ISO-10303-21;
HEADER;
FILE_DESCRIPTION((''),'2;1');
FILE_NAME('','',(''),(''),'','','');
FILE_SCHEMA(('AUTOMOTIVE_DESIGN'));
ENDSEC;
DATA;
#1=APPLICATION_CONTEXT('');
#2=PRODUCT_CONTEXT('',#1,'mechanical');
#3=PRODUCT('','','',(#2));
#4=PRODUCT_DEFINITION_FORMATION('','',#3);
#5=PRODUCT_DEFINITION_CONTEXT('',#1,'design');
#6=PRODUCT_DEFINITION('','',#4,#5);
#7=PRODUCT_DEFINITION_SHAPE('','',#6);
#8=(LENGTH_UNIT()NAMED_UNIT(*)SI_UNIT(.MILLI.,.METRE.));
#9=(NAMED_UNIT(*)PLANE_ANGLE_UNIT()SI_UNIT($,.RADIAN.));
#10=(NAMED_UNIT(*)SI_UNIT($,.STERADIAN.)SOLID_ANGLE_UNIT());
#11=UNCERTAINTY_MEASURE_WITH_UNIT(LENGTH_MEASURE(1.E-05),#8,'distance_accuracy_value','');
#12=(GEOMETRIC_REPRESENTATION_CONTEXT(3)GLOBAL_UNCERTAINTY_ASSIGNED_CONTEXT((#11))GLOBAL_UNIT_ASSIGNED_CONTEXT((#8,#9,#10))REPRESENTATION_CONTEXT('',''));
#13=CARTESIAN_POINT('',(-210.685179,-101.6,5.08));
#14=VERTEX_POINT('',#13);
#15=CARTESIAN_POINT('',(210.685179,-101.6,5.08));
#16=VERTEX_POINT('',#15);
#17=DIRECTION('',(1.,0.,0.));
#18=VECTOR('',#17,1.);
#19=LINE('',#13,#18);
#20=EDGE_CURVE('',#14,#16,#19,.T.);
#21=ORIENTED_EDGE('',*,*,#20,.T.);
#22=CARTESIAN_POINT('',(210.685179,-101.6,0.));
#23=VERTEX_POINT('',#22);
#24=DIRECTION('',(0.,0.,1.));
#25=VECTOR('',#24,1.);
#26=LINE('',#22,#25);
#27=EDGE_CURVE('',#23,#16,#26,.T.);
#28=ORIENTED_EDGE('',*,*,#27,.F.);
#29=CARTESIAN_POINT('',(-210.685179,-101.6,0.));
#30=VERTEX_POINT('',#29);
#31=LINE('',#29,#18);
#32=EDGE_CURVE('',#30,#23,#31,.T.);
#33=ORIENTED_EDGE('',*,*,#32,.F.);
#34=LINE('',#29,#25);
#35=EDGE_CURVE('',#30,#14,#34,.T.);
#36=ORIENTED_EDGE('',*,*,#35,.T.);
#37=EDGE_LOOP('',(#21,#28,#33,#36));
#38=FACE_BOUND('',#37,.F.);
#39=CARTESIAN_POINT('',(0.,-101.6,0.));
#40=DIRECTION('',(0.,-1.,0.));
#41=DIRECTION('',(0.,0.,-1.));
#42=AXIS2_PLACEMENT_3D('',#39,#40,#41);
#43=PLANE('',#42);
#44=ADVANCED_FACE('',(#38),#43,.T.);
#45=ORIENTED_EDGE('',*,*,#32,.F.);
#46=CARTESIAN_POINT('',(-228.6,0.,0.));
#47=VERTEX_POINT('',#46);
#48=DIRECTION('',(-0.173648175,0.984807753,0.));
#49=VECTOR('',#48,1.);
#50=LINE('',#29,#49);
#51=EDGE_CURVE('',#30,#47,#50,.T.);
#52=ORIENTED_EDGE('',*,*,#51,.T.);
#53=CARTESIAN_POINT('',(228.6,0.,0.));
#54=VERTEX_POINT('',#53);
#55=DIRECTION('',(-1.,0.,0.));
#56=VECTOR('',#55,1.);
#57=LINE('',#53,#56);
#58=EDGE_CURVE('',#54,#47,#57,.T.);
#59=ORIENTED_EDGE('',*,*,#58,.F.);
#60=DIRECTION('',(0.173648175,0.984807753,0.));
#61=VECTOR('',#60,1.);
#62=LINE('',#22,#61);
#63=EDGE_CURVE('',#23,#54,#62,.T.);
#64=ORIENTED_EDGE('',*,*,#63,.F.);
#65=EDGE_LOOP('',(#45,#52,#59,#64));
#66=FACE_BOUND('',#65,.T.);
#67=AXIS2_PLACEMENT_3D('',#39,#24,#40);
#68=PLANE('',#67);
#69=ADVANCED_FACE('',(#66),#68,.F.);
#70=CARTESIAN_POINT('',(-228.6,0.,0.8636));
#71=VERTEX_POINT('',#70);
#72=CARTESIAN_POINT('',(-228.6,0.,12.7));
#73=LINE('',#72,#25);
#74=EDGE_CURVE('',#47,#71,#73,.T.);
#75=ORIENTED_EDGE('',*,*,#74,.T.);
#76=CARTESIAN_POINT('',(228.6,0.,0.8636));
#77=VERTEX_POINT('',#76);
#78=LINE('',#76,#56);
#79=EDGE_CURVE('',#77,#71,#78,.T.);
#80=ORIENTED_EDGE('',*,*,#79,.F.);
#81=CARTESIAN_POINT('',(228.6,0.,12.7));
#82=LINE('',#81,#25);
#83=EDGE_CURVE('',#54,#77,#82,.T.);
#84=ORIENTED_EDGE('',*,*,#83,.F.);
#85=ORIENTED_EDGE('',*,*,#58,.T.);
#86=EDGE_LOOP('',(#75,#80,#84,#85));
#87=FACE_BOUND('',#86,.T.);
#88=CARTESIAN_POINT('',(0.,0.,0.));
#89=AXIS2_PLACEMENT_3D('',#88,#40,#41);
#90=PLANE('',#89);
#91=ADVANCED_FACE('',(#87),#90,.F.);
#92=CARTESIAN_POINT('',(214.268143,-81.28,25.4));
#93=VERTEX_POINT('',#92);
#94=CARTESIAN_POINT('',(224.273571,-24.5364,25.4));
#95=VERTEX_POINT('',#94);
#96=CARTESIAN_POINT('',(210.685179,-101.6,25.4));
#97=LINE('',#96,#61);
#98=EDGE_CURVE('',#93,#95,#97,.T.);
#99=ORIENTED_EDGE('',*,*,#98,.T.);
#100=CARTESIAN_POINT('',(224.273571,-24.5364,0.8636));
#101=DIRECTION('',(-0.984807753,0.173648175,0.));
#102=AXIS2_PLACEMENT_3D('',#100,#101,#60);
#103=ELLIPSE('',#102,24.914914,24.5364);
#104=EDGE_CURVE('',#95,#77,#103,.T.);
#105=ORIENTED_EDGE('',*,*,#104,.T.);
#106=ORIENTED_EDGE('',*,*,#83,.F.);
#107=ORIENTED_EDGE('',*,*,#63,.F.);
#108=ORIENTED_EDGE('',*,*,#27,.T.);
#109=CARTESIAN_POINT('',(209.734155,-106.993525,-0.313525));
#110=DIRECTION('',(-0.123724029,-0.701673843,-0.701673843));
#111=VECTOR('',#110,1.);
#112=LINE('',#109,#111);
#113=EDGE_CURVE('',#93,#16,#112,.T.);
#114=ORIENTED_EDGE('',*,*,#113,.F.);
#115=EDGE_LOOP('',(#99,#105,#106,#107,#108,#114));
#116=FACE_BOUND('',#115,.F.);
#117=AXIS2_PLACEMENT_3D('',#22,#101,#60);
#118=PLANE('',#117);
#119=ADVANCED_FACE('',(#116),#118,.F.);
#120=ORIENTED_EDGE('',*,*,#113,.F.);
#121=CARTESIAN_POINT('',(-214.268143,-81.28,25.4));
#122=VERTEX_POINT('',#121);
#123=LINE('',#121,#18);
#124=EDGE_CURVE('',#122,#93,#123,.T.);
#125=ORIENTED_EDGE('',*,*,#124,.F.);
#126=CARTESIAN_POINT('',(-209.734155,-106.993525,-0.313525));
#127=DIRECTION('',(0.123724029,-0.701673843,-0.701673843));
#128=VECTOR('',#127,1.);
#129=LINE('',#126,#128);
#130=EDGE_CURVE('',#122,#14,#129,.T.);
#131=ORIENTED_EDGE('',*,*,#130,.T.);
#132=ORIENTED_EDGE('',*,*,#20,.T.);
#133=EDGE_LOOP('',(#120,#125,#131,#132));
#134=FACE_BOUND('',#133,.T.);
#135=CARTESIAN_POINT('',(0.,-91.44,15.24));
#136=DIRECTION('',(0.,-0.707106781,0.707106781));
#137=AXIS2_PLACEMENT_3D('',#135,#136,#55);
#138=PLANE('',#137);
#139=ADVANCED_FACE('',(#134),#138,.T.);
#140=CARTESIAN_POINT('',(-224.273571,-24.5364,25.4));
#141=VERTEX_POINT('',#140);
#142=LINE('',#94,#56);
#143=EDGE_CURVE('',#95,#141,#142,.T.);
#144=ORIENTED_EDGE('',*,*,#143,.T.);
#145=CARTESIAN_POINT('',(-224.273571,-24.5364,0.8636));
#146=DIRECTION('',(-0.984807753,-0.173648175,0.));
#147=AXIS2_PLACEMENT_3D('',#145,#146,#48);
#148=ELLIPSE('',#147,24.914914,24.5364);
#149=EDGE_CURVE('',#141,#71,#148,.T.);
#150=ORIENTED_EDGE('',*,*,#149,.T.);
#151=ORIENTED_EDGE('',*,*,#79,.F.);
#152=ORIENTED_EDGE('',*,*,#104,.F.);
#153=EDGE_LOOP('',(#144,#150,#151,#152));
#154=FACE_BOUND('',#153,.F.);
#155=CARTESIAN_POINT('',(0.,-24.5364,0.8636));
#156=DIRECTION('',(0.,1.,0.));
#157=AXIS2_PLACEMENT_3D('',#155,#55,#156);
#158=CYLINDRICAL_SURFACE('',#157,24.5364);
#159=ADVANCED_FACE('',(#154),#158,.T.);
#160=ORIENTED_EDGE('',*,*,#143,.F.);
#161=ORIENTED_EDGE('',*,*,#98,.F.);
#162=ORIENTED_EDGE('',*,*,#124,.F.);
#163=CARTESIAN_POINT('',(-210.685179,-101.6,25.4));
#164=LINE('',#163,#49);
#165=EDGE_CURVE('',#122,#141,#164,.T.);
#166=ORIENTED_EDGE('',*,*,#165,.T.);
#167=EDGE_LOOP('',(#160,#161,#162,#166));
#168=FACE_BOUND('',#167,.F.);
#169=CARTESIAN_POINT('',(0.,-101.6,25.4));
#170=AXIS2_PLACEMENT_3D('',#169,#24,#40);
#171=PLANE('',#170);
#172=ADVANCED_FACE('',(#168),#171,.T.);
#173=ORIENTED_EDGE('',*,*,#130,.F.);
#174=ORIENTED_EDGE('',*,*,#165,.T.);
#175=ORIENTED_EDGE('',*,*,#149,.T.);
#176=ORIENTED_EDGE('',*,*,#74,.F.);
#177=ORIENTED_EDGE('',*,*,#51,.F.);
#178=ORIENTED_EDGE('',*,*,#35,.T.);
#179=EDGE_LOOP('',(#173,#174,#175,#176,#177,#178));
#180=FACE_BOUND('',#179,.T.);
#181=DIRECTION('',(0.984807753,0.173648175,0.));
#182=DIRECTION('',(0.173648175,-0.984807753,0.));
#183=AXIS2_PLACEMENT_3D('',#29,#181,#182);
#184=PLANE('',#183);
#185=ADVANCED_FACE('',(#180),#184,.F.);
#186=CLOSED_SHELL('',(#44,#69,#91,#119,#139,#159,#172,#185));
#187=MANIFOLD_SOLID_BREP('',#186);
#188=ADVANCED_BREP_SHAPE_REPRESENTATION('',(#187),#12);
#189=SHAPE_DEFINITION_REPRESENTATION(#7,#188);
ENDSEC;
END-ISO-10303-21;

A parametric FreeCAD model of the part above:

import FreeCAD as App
import Part
import Sketcher
Q = App.Units.Quantity


def edges_at(feature, points):
    """Names of the edges that pass closest to the given points."""
    edges = feature.Shape.Edges
    near = lambda p: min(range(len(edges)), key=lambda i: edges[i].distToShape(Part.Vertex(*p))[0])
    return sorted({f"Edge{near(p) + 1}" for p in points})

doc = App.newDocument("Part")
body = doc.addObject("PartDesign::Body", "Body")

sketch1 = doc.addObject("Sketcher::SketchObject", "Sketch")
body.addObject(sketch1)
sketch1.AttachmentSupport = (doc.YZ_Plane, [""])
sketch1.MapMode = "FlatFace"
sketch1.addGeometry(Part.LineSegment(App.Vector(-102, 25, 0), App.Vector(-102, 0, 0)), False)
sketch1.addGeometry(Part.LineSegment(App.Vector(-102, 0, 0), App.Vector(0, 0, 0)), False)
sketch1.addGeometry(Part.LineSegment(App.Vector(0, 0, 0), App.Vector(0, 25, 0)), False)
sketch1.addGeometry(Part.LineSegment(App.Vector(0, 25, 0), App.Vector(-102, 25, 0)), False)
sketch1.addConstraint(Sketcher.Constraint("Coincident", 0, 2, 1, 1))
sketch1.addConstraint(Sketcher.Constraint("Coincident", 1, 2, 2, 1))
sketch1.addConstraint(Sketcher.Constraint("Coincident", 2, 2, 3, 1))
sketch1.addConstraint(Sketcher.Constraint("Coincident", 3, 2, 0, 1))
sketch1.addConstraint(Sketcher.Constraint("Vertical", 0))
sketch1.addConstraint(Sketcher.Constraint("Horizontal", 1))
sketch1.addConstraint(Sketcher.Constraint("Vertical", 2))
sketch1.addConstraint(Sketcher.Constraint("Horizontal", 3))
sketch1.addConstraint(Sketcher.Constraint("Coincident", 1, 2, -1, 1))
sketch1.addConstraint(Sketcher.Constraint("DistanceX", 1, 1, 1, 2, Q("4 in")))
sketch1.addConstraint(Sketcher.Constraint("DistanceY", 0, 2, 0, 1, Q("1 in")))
pad1 = doc.addObject("PartDesign::Pad", "Pad")
body.addObject(pad1)
pad1.Profile = sketch1
pad1.Length = Q("9 in")
doc.recompute()

fillet = doc.addObject("PartDesign::Fillet", "Fillet")
body.addObject(fillet)
fillet.Base = (pad1, edges_at(pad1, [(114.3, 0, 25.4)]))
fillet.Radius = Q("0.966 in")

sketch2 = doc.addObject("Sketcher::SketchObject", "Sketch001")
body.addObject(sketch2)
sketch2.AttachmentSupport = (doc.XY_Plane, [""])
sketch2.MapMode = "FlatFace"
sketch2.addGeometry(Part.LineSegment(App.Vector(211, -102, 0), App.Vector(229, 0, 0)), False)
sketch2.addGeometry(Part.LineSegment(App.Vector(229, 0, 0), App.Vector(229, -102, 0)), False)
sketch2.addGeometry(Part.LineSegment(App.Vector(229, -102, 0), App.Vector(211, -102, 0)), False)
sketch2.addConstraint(Sketcher.Constraint("Coincident", 0, 2, 1, 1))
sketch2.addConstraint(Sketcher.Constraint("Coincident", 1, 2, 2, 1))
sketch2.addConstraint(Sketcher.Constraint("Coincident", 2, 2, 0, 1))
sketch2.addConstraint(Sketcher.Constraint("Vertical", 1))
sketch2.addConstraint(Sketcher.Constraint("Horizontal", 2))
sketch2.addConstraint(Sketcher.Constraint("PointOnObject", 0, 2, -1))
sketch2.addConstraint(Sketcher.Constraint("DistanceY", 1, 2, 1, 1, Q("4 in")))
sketch2.addConstraint(Sketcher.Constraint("DistanceX", -1, 1, 0, 2, Q("9 in")))
sketch2.addConstraint(Sketcher.Constraint("Angle", 0, Q("80 deg")))
pocket1 = doc.addObject("PartDesign::Pocket", "Pocket")
body.addObject(pocket1)
pocket1.Profile = sketch2
pocket1.Length = Q("1 in")
pocket1.Reversed = True
doc.recompute()

chamfer = doc.addObject("PartDesign::Chamfer", "Chamfer")
body.addObject(chamfer)
chamfer.Base = (pocket1, edges_at(pocket1, [(105.343, -101.6, 25.4)]))
chamfer.Size = Q("0.8 in")
body2 = doc.addObject("PartDesign::Body", "Body001")
doc.recompute()

body2.BaseFeature = body
doc.recompute()

mirroring = doc.addObject("Part::Mirroring", "Mirroring")
mirroring.Source = body
mirroring.Base = App.Vector(0, 0, 0)
mirroring.Normal = App.Vector(1, 0, 0)
body3 = doc.addObject("PartDesign::Body", "Body002")
body3.BaseFeature = mirroring
boolean = doc.addObject("PartDesign::Boolean", "Boolean")
body2.addObject(boolean)
boolean.Type = "Fuse"
boolean.addObjects([body3])
doc.recompute()
mirroring.Visibility = False

doc.recompute()
